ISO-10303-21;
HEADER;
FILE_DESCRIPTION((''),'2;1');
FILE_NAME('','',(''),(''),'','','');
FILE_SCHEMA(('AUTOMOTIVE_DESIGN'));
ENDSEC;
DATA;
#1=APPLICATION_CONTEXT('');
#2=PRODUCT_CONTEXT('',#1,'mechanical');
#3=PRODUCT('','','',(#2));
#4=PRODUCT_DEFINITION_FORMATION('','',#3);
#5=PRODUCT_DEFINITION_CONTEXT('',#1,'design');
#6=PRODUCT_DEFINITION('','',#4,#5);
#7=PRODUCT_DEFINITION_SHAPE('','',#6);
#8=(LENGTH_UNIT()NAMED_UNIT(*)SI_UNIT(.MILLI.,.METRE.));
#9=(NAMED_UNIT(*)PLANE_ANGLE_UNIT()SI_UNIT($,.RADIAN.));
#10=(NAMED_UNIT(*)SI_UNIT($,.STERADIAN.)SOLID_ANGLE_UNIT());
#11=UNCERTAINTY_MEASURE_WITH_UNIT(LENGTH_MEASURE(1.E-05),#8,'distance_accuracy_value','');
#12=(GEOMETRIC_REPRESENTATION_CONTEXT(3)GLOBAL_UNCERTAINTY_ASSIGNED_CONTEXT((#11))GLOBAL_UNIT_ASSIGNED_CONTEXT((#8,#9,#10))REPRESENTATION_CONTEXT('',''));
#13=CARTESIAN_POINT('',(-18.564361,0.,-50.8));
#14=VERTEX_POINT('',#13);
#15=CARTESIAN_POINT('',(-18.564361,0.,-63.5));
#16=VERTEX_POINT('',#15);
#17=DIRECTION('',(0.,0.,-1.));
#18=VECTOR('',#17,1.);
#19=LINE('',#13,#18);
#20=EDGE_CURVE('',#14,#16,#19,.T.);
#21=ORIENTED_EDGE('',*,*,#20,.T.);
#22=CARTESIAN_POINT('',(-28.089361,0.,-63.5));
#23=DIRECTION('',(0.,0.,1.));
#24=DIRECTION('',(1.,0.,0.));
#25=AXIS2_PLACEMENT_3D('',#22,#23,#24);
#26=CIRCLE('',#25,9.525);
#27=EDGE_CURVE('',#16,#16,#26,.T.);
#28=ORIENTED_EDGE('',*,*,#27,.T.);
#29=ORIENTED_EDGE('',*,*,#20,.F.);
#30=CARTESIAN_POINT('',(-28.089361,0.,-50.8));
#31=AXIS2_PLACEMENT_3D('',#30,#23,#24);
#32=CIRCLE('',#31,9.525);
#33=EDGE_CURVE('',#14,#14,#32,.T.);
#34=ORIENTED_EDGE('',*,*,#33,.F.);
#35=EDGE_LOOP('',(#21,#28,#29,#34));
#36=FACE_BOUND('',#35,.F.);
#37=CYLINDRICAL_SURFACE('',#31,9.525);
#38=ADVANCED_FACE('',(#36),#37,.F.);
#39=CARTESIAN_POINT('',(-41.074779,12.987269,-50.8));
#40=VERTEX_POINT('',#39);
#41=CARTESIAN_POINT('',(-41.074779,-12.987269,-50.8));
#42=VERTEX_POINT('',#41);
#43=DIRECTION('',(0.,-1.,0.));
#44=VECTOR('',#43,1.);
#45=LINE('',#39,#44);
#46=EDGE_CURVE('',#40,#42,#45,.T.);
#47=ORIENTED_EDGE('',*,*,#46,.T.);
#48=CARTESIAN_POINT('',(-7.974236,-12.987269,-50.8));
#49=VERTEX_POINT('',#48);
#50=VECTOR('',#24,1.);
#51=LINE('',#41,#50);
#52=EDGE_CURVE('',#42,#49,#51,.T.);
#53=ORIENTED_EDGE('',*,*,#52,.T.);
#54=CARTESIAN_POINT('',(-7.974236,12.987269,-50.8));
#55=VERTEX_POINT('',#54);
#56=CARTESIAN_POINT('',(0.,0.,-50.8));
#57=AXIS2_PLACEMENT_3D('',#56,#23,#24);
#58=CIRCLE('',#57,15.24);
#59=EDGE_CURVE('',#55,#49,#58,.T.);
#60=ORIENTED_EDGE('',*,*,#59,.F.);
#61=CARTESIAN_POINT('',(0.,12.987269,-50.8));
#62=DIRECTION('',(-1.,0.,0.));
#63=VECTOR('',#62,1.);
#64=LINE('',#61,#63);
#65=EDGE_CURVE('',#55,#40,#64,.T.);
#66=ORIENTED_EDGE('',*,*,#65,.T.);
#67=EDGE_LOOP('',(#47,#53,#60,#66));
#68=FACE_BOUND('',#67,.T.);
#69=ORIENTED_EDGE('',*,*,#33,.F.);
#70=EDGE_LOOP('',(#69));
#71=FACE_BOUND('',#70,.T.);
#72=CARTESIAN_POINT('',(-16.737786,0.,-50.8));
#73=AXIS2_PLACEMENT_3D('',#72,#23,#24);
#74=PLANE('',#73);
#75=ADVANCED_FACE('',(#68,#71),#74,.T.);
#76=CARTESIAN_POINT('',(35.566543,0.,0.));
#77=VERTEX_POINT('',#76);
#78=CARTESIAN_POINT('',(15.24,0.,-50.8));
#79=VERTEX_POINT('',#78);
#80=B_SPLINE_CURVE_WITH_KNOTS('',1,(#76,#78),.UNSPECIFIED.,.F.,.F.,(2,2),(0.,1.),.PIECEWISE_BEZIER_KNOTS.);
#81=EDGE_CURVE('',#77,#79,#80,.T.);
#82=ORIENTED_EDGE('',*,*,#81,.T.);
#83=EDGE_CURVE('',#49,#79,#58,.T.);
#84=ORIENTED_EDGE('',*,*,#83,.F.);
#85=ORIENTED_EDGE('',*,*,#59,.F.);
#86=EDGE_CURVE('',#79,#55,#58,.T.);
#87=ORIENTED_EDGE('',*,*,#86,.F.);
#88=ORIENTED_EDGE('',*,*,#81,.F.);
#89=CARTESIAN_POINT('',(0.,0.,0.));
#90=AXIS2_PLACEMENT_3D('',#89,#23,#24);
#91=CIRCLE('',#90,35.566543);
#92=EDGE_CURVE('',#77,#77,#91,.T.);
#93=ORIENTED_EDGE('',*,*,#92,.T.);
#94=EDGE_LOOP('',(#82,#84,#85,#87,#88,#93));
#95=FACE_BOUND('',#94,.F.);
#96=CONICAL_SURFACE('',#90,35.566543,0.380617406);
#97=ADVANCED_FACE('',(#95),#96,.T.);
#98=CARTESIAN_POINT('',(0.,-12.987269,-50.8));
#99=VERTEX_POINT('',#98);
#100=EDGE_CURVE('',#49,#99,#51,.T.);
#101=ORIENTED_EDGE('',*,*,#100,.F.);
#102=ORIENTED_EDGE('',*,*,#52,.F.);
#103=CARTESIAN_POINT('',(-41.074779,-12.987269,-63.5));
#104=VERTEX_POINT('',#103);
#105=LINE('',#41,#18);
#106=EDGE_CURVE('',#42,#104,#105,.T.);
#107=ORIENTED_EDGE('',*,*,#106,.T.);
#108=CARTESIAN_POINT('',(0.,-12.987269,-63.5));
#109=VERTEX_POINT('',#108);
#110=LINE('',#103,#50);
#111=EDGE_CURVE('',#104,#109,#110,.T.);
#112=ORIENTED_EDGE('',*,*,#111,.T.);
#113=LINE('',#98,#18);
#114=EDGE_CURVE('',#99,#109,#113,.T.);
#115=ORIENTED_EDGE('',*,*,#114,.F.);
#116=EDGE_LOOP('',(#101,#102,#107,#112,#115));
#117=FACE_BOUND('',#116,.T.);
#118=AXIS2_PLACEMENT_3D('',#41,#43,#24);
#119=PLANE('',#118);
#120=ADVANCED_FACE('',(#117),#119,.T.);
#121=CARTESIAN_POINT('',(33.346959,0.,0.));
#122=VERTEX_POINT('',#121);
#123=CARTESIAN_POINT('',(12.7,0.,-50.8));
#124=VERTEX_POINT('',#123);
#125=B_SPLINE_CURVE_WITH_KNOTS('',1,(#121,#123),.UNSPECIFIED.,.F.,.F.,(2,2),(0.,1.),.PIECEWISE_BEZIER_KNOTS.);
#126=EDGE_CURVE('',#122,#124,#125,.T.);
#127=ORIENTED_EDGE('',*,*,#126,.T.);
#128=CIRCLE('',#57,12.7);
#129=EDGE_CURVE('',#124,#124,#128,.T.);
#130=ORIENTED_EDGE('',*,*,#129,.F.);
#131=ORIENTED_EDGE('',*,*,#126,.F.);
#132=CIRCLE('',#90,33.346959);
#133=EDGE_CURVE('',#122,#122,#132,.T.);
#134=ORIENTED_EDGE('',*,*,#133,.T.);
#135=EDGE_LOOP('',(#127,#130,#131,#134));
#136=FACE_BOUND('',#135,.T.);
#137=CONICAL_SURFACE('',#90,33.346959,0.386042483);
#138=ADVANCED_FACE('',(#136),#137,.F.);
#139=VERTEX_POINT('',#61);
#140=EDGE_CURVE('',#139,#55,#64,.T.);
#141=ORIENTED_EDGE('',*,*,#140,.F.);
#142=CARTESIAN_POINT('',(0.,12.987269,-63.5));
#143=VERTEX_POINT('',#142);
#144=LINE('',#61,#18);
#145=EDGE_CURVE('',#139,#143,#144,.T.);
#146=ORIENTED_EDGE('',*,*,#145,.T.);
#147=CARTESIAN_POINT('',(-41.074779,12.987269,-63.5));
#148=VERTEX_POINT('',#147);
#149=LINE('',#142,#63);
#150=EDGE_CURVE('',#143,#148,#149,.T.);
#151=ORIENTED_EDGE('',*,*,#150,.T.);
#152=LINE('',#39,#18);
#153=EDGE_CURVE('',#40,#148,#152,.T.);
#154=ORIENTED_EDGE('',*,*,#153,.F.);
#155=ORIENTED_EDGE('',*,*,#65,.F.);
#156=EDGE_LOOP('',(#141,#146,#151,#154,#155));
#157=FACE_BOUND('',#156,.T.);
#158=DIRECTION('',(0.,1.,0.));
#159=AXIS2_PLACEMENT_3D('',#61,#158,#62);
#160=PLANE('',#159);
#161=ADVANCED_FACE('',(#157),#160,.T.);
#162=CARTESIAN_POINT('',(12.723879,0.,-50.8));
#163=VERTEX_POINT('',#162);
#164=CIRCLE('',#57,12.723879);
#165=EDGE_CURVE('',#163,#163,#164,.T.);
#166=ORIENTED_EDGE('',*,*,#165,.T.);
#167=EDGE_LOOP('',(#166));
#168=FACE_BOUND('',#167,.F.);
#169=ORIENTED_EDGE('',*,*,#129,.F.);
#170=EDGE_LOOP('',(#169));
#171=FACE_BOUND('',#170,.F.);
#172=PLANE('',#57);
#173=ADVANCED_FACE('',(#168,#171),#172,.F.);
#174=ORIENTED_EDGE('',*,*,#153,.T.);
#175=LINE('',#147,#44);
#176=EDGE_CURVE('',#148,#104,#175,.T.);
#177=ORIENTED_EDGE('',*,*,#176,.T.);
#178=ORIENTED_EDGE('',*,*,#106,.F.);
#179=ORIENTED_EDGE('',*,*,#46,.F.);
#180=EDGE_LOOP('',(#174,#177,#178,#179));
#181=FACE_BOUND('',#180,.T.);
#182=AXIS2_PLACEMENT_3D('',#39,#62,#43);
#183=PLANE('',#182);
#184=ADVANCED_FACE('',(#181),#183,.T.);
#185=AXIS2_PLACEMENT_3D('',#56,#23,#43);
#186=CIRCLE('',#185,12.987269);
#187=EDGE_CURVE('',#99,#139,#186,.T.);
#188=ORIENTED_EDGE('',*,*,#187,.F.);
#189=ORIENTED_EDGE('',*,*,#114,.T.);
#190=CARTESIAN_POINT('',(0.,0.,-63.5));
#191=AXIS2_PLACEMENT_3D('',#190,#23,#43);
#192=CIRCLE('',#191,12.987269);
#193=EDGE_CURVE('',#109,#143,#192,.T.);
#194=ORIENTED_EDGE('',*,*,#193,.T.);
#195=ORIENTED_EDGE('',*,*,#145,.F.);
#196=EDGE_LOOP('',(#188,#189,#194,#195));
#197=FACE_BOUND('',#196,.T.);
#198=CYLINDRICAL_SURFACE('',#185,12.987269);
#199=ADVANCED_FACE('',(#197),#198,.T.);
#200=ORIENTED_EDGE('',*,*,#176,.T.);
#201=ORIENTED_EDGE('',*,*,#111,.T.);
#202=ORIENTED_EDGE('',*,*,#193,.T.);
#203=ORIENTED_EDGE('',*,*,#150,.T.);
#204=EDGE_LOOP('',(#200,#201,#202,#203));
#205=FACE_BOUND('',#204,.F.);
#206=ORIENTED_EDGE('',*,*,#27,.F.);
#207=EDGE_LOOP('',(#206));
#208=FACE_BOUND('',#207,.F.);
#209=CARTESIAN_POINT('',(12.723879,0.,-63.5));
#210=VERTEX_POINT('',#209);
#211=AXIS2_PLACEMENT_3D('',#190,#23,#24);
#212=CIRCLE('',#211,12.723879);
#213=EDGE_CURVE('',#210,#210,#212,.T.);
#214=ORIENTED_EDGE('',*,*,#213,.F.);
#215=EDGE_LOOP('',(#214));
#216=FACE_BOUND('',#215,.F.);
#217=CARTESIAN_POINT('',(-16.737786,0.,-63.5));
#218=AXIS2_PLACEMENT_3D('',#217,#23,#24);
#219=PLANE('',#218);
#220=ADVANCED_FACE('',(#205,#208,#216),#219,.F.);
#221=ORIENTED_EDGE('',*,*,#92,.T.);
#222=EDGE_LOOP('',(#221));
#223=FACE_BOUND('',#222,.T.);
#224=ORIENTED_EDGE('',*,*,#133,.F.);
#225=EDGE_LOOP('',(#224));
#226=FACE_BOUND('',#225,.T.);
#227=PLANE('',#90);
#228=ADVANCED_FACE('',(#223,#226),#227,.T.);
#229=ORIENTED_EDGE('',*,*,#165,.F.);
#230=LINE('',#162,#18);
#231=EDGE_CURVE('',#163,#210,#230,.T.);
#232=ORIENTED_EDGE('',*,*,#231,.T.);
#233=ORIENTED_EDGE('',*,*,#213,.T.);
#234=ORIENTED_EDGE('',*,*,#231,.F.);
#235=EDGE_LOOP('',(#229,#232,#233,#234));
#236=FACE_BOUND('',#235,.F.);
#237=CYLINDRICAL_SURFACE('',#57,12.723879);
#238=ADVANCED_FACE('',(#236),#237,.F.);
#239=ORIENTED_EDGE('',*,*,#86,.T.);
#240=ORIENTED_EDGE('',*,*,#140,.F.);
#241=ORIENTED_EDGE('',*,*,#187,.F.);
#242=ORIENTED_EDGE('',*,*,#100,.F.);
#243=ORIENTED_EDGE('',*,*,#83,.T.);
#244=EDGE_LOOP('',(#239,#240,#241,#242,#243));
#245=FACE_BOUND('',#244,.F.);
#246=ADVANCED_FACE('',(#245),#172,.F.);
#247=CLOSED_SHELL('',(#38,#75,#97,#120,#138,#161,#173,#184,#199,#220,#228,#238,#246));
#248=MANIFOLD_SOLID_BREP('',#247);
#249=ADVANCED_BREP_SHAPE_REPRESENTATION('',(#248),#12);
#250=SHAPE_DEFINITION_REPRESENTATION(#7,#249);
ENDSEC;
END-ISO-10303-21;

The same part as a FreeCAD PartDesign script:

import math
import FreeCAD as App
import Part
import Sketcher
from FreeCAD import Vector
Q = App.Units.Quantity

doc = App.newDocument("Part")
body = doc.addObject("PartDesign::Body", "Body")

sketch1 = body.newObject("Sketcher::SketchObject", "Sketch")
sketch1.AttachmentSupport = (doc.getObject("XY_Plane"), [""])
sketch1.MapMode = "FlatFace"
sketch1.addGeometry(Part.Circle(Vector(0, 0, 0), Vector(0, 0, 1), 36), False)
sketch1.addConstraint([
    Sketcher.Constraint("Coincident", 0, 3, -1, 1),
    Sketcher.Constraint("Diameter", 0, Q("71.133086 mm")),
])

sketch2 = body.newObject("Sketcher::SketchObject", "Sketch001")
sketch2.AttachmentSupport = (doc.getObject("XY_Plane"), [""])
sketch2.MapMode = "FlatFace"
sketch2.AttachmentOffset = App.Placement(Vector(0, 0, -2 * 25.4), App.Rotation())
sketch2.addGeometry(Part.Circle(Vector(0, 0, 0), Vector(0, 0, 1), 15), False)
sketch2.addConstraint([
    Sketcher.Constraint("Coincident", 0, 3, -1, 1),
    Sketcher.Constraint("Diameter", 0, Q("1.2 in")),
])

additiveloft = body.newObject("PartDesign::AdditiveLoft", "AdditiveLoft")
additiveloft.Profile = sketch1
additiveloft.Sections = [sketch2]

sketch3 = body.newObject("Sketcher::SketchObject", "Sketch002")
sketch3.AttachmentSupport = (doc.getObject("XY_Plane"), [""])
sketch3.MapMode = "FlatFace"
sketch3.addGeometry(Part.Circle(Vector(0, 0, 0), Vector(0, 0, 1), 33), False)
sketch3.addConstraint([
    Sketcher.Constraint("Coincident", 0, 3, -1, 1),
    Sketcher.Constraint("Diameter", 0, Q("66.693918 mm")),
])

sketch4 = body.newObject("Sketcher::SketchObject", "Sketch003")
sketch4.AttachmentSupport = (doc.getObject("XY_Plane"), [""])
sketch4.MapMode = "FlatFace"
sketch4.AttachmentOffset = App.Placement(Vector(0, 0, -2 * 25.4), App.Rotation())
sketch4.addGeometry(Part.Circle(Vector(0, 0, 0), Vector(0, 0, 1), 13), False)
sketch4.addConstraint([
    Sketcher.Constraint("Coincident", 0, 3, -1, 1),
    Sketcher.Constraint("Diameter", 0, Q("1 in")),
])

subtractiveloft = body.newObject("PartDesign::SubtractiveLoft", "SubtractiveLoft")
subtractiveloft.Profile = sketch3
subtractiveloft.Sections = [sketch4]

sketch5 = body.newObject("Sketcher::SketchObject", "Sketch004")
sketch5.AttachmentSupport = (doc.getObject("XY_Plane"), [""])
sketch5.MapMode = "FlatFace"
sketch5.AttachmentOffset = App.Placement(Vector(0, 0, -2 * 25.4), App.Rotation())
sketch5.addGeometry([
    Part.ArcOfCircle(Part.Circle(Vector(0, 0, 0), Vector(0, 0, 1), 13), math.radians(-90), math.radians(90)),
    Part.LineSegment(Vector(0, 13, 0), Vector(-41, 13, 0)),
    Part.LineSegment(Vector(-41, 13, 0), Vector(-41, -13, 0)),
    Part.LineSegment(Vector(-41, -13, 0), Vector(0, -13, 0)),
    Part.Circle(Vector(-28, 0, 0), Vector(0, 0, 1), 10),
    Part.Circle(Vector(0, 0, 0), Vector(0, 0, 1), 13),
], False)
sketch5.addConstraint([
    Sketcher.Constraint("Tangent", 0, 2, 1, 1),
    Sketcher.Constraint("Coincident", 1, 2, 2, 1),
    Sketcher.Constraint("Coincident", 2, 2, 3, 1),
    Sketcher.Constraint("Tangent", 3, 2, 0, 1),
    Sketcher.Constraint("Horizontal", 1),
    Sketcher.Constraint("Vertical", 2),
    Sketcher.Constraint("Horizontal", 3),
    Sketcher.Constraint("Coincident", 0, 3, -1, 1),
    Sketcher.Constraint("Coincident", 5, 3, -1, 1),
    Sketcher.Constraint("PointOnObject", 4, 3, -1),
    Sketcher.Constraint("Diameter", 4, Q("0.75 in")),
    Sketcher.Constraint("Diameter", 5, Q("25.447758 mm")),
    Sketcher.Constraint("Radius", 0, Q("12.987269 mm")),
    Sketcher.Constraint("DistanceX", 1, 2, 1, 1, Q("41.074779 mm")),
    Sketcher.Constraint("DistanceX", 4, 3, -1, 1, Q("28.089361 mm")),
])
pad1 = body.newObject("PartDesign::Pad", "Pad")
pad1.Profile = sketch5
pad1.Length = Q("0.5 in")
pad1.Reversed = True

doc.recompute()
